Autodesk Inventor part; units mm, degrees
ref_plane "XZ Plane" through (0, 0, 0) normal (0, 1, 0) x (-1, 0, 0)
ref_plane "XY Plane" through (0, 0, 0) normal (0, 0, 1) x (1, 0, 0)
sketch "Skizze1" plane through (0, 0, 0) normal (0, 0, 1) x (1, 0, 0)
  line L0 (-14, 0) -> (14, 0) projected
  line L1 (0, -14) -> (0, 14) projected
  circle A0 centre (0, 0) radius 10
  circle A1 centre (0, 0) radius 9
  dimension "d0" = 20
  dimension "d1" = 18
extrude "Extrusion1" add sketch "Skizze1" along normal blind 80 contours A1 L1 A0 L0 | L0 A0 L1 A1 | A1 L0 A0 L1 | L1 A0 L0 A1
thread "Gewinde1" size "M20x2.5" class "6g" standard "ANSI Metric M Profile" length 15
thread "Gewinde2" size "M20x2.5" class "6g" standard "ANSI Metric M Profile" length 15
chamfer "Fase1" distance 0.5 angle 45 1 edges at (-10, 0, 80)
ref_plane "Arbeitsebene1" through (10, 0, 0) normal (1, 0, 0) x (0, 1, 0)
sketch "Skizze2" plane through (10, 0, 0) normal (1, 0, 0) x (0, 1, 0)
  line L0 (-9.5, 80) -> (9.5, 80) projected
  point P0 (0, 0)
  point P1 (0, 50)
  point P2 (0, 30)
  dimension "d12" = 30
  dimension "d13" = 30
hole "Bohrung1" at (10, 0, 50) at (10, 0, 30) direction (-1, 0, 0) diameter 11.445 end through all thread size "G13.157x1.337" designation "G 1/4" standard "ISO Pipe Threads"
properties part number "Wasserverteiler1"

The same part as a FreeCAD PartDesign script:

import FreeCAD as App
import Part
import Sketcher
Q = App.Units.Quantity


def edges_at(feature, points):
    """Names of the edges that pass closest to the given points."""
    edges = feature.Shape.Edges
    near = lambda p: min(range(len(edges)), key=lambda i: edges[i].distToShape(Part.Vertex(*p))[0])
    return sorted({f"Edge{near(p) + 1}" for p in points})

doc = App.newDocument("Part")
body = doc.addObject("PartDesign::Body", "Body")

sketch1 = body.newObject("Sketcher::SketchObject", "Sketch")
sketch1.AttachmentSupport = (doc.getObject("XY_Plane"), [""])
sketch1.MapMode = "FlatFace"
sketch1.addGeometry([
    Part.Circle(App.Vector(0, 0, 0), App.Vector(0, 0, 1), 10),
    Part.Circle(App.Vector(0, 0, 0), App.Vector(0, 0, 1), 9),
], False)
sketch1.addConstraint([
    Sketcher.Constraint("Coincident", 0, 3, -1, 1),
    Sketcher.Constraint("Coincident", 1, 3, -1, 1),
    Sketcher.Constraint("Diameter", 0, Q("20 mm")),
    Sketcher.Constraint("Diameter", 1, Q("18 mm")),
])
pad1 = body.newObject("PartDesign::Pad", "Pad")
pad1.Profile = sketch1
pad1.Length = 80
doc.recompute()

chamfer = body.newObject("PartDesign::Chamfer", "Chamfer")
chamfer.Base = (pad1, edges_at(pad1, [(-10, 0, 80)]))
chamfer.Size = 0.5

sketch2 = body.newObject("Sketcher::SketchObject", "Sketch001")
sketch2.AttachmentSupport = (doc.getObject("YZ_Plane"), [""])
sketch2.MapMode = "FlatFace"
sketch2.AttachmentOffset = App.Placement(App.Vector(0, 0, 10), App.Rotation())
sketch2.addGeometry([
    Part.Circle(App.Vector(0, 50, 0), App.Vector(0, 0, 1), 6),
    Part.Circle(App.Vector(0, 30, 0), App.Vector(0, 0, 1), 6),
], False)
sketch2.addConstraint([
    Sketcher.Constraint("Equal", 0, 1),
    Sketcher.Constraint("PointOnObject", 0, 3, -2),
    Sketcher.Constraint("PointOnObject", 1, 3, -2),
    Sketcher.Constraint("Diameter", 0, Q("11.445 mm")),
    Sketcher.Constraint("DistanceY", -1, 1, 0, 3, Q("50 mm")),
    Sketcher.Constraint("DistanceY", -1, 1, 1, 3, Q("30 mm")),
])
doc.recompute()
hole = body.newObject("PartDesign::Hole", "Hole")
hole.Profile = sketch2
hole.ThreadType = "None"
hole.Diameter = 11.445
hole.DepthType = "ThroughAll"

doc.recompute()
